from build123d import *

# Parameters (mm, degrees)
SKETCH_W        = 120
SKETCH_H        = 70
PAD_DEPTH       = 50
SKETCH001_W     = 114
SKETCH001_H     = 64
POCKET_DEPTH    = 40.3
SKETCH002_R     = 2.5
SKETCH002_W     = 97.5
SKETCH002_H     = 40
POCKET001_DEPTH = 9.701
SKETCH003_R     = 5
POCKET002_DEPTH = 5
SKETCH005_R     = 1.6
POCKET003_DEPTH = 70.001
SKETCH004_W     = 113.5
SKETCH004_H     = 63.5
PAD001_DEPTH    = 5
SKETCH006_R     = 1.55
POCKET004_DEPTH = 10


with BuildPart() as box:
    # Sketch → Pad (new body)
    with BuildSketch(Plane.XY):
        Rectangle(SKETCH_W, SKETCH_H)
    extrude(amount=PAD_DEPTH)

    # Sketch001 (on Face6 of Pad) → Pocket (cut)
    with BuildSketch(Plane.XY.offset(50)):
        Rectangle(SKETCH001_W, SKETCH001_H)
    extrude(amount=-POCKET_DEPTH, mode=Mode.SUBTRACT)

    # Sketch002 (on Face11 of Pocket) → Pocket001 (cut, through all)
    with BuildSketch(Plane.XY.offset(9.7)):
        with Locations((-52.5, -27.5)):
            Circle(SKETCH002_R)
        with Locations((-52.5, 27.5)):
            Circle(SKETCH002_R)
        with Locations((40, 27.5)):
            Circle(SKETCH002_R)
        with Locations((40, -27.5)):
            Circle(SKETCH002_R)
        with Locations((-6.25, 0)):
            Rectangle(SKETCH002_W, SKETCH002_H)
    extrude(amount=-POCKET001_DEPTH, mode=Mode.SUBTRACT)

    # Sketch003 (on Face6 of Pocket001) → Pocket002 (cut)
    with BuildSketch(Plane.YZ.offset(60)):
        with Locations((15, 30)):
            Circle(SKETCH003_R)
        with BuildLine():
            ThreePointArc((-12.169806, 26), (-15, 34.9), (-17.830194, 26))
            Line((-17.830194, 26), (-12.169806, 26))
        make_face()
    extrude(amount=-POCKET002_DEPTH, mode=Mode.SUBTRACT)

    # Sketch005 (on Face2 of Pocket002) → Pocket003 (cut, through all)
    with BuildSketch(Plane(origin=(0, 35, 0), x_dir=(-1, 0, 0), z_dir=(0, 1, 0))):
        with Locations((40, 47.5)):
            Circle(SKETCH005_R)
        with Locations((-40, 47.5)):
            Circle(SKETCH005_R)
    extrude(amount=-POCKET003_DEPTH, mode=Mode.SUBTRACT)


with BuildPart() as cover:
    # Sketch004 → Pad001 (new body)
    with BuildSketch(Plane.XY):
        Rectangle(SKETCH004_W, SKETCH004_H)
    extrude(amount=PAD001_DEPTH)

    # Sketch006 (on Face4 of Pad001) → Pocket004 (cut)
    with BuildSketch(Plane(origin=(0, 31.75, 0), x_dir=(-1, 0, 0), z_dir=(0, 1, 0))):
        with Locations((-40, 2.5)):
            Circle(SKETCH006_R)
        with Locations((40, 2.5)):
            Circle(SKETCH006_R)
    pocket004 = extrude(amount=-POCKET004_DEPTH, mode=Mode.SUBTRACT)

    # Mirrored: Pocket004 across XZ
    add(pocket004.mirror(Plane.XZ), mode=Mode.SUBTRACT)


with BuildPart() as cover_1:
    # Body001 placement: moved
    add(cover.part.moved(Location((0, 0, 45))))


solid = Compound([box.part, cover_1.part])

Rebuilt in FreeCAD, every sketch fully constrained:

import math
import FreeCAD as App
import Part
import Sketcher

V = App.Vector
Q = App.Units.Quantity


def add_polygon(sketch, points):
    """Adds a closed chain of lines whose ends are joined by coincident constraints."""
    first, n = sketch.GeometryCount, len(points)
    for a, b in zip(points, points[1:] + points[:1]):
        sketch.addGeometry(Part.LineSegment(App.Vector(*a, 0), App.Vector(*b, 0)), False)
    for i in range(n):
        sketch.addConstraint(Sketcher.Constraint("Coincident", first + i, 2, first + (i + 1) % n, 1))

doc = App.newDocument("Part")
body = doc.addObject("PartDesign::Body", "Body")

sketch1 = doc.addObject("Sketcher::SketchObject", "Sketch")
body.addObject(sketch1)
sketch1.AttachmentSupport = (doc.XY_Plane, [""])
sketch1.MapMode = "FlatFace"
add_polygon(sketch1, [(-60, 35), (-60, -35), (60, -35), (60, 35)])
sketch1.addConstraint(Sketcher.Constraint("Vertical", 0))
sketch1.addConstraint(Sketcher.Constraint("Horizontal", 1))
sketch1.addConstraint(Sketcher.Constraint("Vertical", 2))
sketch1.addConstraint(Sketcher.Constraint("Horizontal", 3))
sketch1.addConstraint(Sketcher.Constraint("Symmetric", 0, 2, 2, 2, -1, 1))
sketch1.addConstraint(Sketcher.Constraint("DistanceX", 1, 1, 1, 2, Q("120 mm")))
sketch1.addConstraint(Sketcher.Constraint("DistanceY", 0, 2, 0, 1, Q("70 mm")))
pad1 = doc.addObject("PartDesign::Pad", "Pad")
body.addObject(pad1)
pad1.Profile = sketch1
pad1.Length = 50

sketch2 = doc.addObject("Sketcher::SketchObject", "Sketch001")
body.addObject(sketch2)
sketch2.AttachmentSupport = (doc.XY_Plane, [""])
sketch2.MapMode = "FlatFace"
sketch2.AttachmentOffset = App.Placement(V(0, 0, 50), App.Rotation())
add_polygon(sketch2, [(-57, 32), (-57, -32), (57, -32), (57, 32)])
sketch2.addConstraint(Sketcher.Constraint("Vertical", 0))
sketch2.addConstraint(Sketcher.Constraint("Horizontal", 1))
sketch2.addConstraint(Sketcher.Constraint("Vertical", 2))
sketch2.addConstraint(Sketcher.Constraint("Horizontal", 3))
sketch2.addConstraint(Sketcher.Constraint("Symmetric", 0, 2, 2, 2, -1, 1))
sketch2.addConstraint(Sketcher.Constraint("DistanceX", 1, 1, 1, 2, Q("114 mm")))
sketch2.addConstraint(Sketcher.Constraint("DistanceY", 0, 2, 0, 1, Q("64 mm")))
pocket1 = doc.addObject("PartDesign::Pocket", "Pocket")
body.addObject(pocket1)
pocket1.Profile = sketch2
pocket1.Length = 40.3

sketch3 = doc.addObject("Sketcher::SketchObject", "Sketch002")
body.addObject(sketch3)
sketch3.AttachmentSupport = (doc.XY_Plane, [""])
sketch3.MapMode = "FlatFace"
sketch3.AttachmentOffset = App.Placement(V(0, 0, 9.7), App.Rotation())
sketch3.addGeometry(Part.Circle(V(-52.5, -27.5, 0), V(0, 0, 1), 2.5), False)
sketch3.addGeometry(Part.Circle(V(-52.5, 27.5, 0), V(0, 0, 1), 2.5), False)
sketch3.addGeometry(Part.Circle(V(40, 27.5, 0), V(0, 0, 1), 2.5), False)
sketch3.addGeometry(Part.Circle(V(40, -27.5, 0), V(0, 0, 1), 2.5), False)
add_polygon(sketch3, [(-55, 20), (-55, -20), (42.5, -20), (42.5, 20)])
sketch3.addConstraint(Sketcher.Constraint("Vertical", 4))
sketch3.addConstraint(Sketcher.Constraint("Horizontal", 5))
sketch3.addConstraint(Sketcher.Constraint("Vertical", 6))
sketch3.addConstraint(Sketcher.Constraint("Horizontal", 7))
sketch3.addConstraint(Sketcher.Constraint("Equal", 0, 1))
sketch3.addConstraint(Sketcher.Constraint("Equal", 1, 2))
sketch3.addConstraint(Sketcher.Constraint("Equal", 2, 3))
sketch3.addConstraint(Sketcher.Constraint("Symmetric", 0, 3, 1, 3, -1))
sketch3.addConstraint(Sketcher.Constraint("Symmetric", 2, 3, 3, 3, -1))
sketch3.addConstraint(Sketcher.Constraint("Horizontal", 1, 3, 2, 3))
sketch3.addConstraint(Sketcher.Constraint("Diameter", 0, Q("5 mm")))
sketch3.addConstraint(Sketcher.Constraint("DistanceY", 4, 2, 4, 1, Q("40 mm")))
sketch3.addConstraint(Sketcher.Constraint("DistanceX", 5, 1, 5, 2, Q("97.5 mm")))
sketch3.addConstraint(Sketcher.Constraint("DistanceX", -1, 1, 2, 3, Q("40 mm")))
sketch3.addConstraint(Sketcher.Constraint("DistanceX", 4, 2, -1, 1, Q("55 mm")))
sketch3.addConstraint(Sketcher.Constraint("DistanceY", 4, 2, -1, 1, Q("20 mm")))
sketch3.addConstraint(Sketcher.Constraint("DistanceY", 0, 3, 1, 3, Q("55 mm")))
sketch3.addConstraint(Sketcher.Constraint("DistanceX", 0, 3, 5, 2, Q("95 mm")))
pocket2 = doc.addObject("PartDesign::Pocket", "Pocket001")
body.addObject(pocket2)
pocket2.Profile = sketch3
pocket2.Type = "ThroughAll"

sketch4 = doc.addObject("Sketcher::SketchObject", "Sketch003")
body.addObject(sketch4)
sketch4.AttachmentSupport = (doc.YZ_Plane, [""])
sketch4.MapMode = "FlatFace"
sketch4.AttachmentOffset = App.Placement(V(0, 0, 60), App.Rotation())
sketch4.addGeometry(Part.Circle(V(15, 30, 0), V(0, 0, 1), 5), False)
sketch4.addGeometry(Part.ArcOfCircle(Part.Circle(V(-15, 30, 0), V(0, 0, 1), 4.9), math.radians(-55), math.radians(235)), False)
sketch4.addGeometry(Part.LineSegment(V(-17.8, 26, 0), V(-12.2, 26, 0)), False)
sketch4.addConstraint(Sketcher.Constraint("Coincident", 1, 1, 2, 2))
sketch4.addConstraint(Sketcher.Constraint("Coincident", 2, 1, 1, 2))
sketch4.addConstraint(Sketcher.Constraint("Horizontal", 2))
sketch4.addConstraint(Sketcher.Constraint("Symmetric", 0, 3, 1, 3, -2))
sketch4.addConstraint(Sketcher.Constraint("Diameter", 0, Q("10 mm")))
sketch4.addConstraint(Sketcher.Constraint("Radius", 1, Q("4.9 mm")))
sketch4.addConstraint(Sketcher.Constraint("DistanceX", -1, 1, 0, 3, Q("15 mm")))
sketch4.addConstraint(Sketcher.Constraint("DistanceY", -1, 1, 0, 3, Q("30 mm")))
sketch4.addConstraint(Sketcher.Constraint("DistanceY", -1, 1, 1, 1, Q("26 mm")))
pocket3 = doc.addObject("PartDesign::Pocket", "Pocket002")
body.addObject(pocket3)
pocket3.Profile = sketch4
pocket3.Length = 5

sketch5 = doc.addObject("Sketcher::SketchObject", "Sketch004")
body.addObject(sketch5)
sketch5.AttachmentSupport = (doc.XZ_Plane, [""])
sketch5.MapMode = "FlatFace"
sketch5.AttachmentOffset = App.Placement(V(0, 0, -35), App.Rotation())
sketch5.addGeometry(Part.Circle(V(-40, 47.5, 0), V(0, 0, 1), 1.6), False)
sketch5.addGeometry(Part.Circle(V(40, 47.5, 0), V(0, 0, 1), 1.6), False)
sketch5.addConstraint(Sketcher.Constraint("Equal", 0, 1))
sketch5.addConstraint(Sketcher.Constraint("Symmetric", 0, 3, 1, 3, -2))
sketch5.addConstraint(Sketcher.Constraint("Diameter", 0, Q("3.2 mm")))
sketch5.addConstraint(Sketcher.Constraint("DistanceX", 0, 3, -1, 1, Q("40 mm")))
sketch5.addConstraint(Sketcher.Constraint("DistanceY", -1, 1, 0, 3, Q("47.5 mm")))
pocket4 = doc.addObject("PartDesign::Pocket", "Pocket003")
body.addObject(pocket4)
pocket4.Profile = sketch5
pocket4.Type = "ThroughAll"
pocket4.Reversed = True
body2 = doc.addObject("PartDesign::Body", "Body001")

sketch6 = doc.addObject("Sketcher::SketchObject", "Sketch005")
body2.addObject(sketch6)
sketch6.AttachmentSupport = (doc.getObject("XY_Plane001"), [""])
sketch6.MapMode = "FlatFace"
add_polygon(sketch6, [(-57, 32), (-57, -32), (57, -32), (57, 32)])
sketch6.addConstraint(Sketcher.Constraint("Vertical", 0))
sketch6.addConstraint(Sketcher.Constraint("Horizontal", 1))
sketch6.addConstraint(Sketcher.Constraint("Vertical", 2))
sketch6.addConstraint(Sketcher.Constraint("Horizontal", 3))
sketch6.addConstraint(Sketcher.Constraint("Symmetric", 0, 2, 2, 2, -1, 1))
sketch6.addConstraint(Sketcher.Constraint("DistanceX", 1, 1, 1, 2, Q("113.5 mm")))
sketch6.addConstraint(Sketcher.Constraint("DistanceY", 0, 2, 0, 1, Q("63.5 mm")))
pad2 = doc.addObject("PartDesign::Pad", "Pad001")
body2.addObject(pad2)
pad2.Profile = sketch6
pad2.Length = 5

sketch7 = doc.addObject("Sketcher::SketchObject", "Sketch006")
body2.addObject(sketch7)
sketch7.AttachmentSupport = (doc.getObject("XZ_Plane001"), [""])
sketch7.MapMode = "FlatFace"
sketch7.AttachmentOffset = App.Placement(V(0, 0, -31.75), App.Rotation())
sketch7.addGeometry(Part.Circle(V(40, 2.5, 0), V(0, 0, 1), 1.6), False)
sketch7.addGeometry(Part.Circle(V(-40, 2.5, 0), V(0, 0, 1), 1.6), False)
sketch7.addConstraint(Sketcher.Constraint("Equal", 0, 1))
sketch7.addConstraint(Sketcher.Constraint("Symmetric", 0, 3, 1, 3, -2))
sketch7.addConstraint(Sketcher.Constraint("Diameter", 0, Q("3.1 mm")))
sketch7.addConstraint(Sketcher.Constraint("DistanceX", -1, 1, 0, 3, Q("40 mm")))
sketch7.addConstraint(Sketcher.Constraint("DistanceY", -1, 1, 0, 3, Q("2.5 mm")))
pocket5 = doc.addObject("PartDesign::Pocket", "Pocket004")
body2.addObject(pocket5)
pocket5.Profile = sketch7
pocket5.Length = 10
pocket5.Reversed = True
doc.recompute()

mirrored = doc.addObject("PartDesign::Mirrored", "Mirrored")
body2.addObject(mirrored)
mirrored.Originals = [pocket5]
mirrored.MirrorPlane = (doc.getObject("XZ_Plane001"), [""])
body2.Tip = mirrored
body3 = doc.addObject("PartDesign::Body", "Body002")
doc.recompute()

body2.Placement = App.Placement(V(0, 0, 45), App.Rotation(V(0, 0, 1), 0))
boolean = doc.addObject("PartDesign::Boolean", "Boolean")
body3.addObject(boolean)
boolean.Type = "Fuse"
boolean.addObjects([body2])

doc.recompute()
